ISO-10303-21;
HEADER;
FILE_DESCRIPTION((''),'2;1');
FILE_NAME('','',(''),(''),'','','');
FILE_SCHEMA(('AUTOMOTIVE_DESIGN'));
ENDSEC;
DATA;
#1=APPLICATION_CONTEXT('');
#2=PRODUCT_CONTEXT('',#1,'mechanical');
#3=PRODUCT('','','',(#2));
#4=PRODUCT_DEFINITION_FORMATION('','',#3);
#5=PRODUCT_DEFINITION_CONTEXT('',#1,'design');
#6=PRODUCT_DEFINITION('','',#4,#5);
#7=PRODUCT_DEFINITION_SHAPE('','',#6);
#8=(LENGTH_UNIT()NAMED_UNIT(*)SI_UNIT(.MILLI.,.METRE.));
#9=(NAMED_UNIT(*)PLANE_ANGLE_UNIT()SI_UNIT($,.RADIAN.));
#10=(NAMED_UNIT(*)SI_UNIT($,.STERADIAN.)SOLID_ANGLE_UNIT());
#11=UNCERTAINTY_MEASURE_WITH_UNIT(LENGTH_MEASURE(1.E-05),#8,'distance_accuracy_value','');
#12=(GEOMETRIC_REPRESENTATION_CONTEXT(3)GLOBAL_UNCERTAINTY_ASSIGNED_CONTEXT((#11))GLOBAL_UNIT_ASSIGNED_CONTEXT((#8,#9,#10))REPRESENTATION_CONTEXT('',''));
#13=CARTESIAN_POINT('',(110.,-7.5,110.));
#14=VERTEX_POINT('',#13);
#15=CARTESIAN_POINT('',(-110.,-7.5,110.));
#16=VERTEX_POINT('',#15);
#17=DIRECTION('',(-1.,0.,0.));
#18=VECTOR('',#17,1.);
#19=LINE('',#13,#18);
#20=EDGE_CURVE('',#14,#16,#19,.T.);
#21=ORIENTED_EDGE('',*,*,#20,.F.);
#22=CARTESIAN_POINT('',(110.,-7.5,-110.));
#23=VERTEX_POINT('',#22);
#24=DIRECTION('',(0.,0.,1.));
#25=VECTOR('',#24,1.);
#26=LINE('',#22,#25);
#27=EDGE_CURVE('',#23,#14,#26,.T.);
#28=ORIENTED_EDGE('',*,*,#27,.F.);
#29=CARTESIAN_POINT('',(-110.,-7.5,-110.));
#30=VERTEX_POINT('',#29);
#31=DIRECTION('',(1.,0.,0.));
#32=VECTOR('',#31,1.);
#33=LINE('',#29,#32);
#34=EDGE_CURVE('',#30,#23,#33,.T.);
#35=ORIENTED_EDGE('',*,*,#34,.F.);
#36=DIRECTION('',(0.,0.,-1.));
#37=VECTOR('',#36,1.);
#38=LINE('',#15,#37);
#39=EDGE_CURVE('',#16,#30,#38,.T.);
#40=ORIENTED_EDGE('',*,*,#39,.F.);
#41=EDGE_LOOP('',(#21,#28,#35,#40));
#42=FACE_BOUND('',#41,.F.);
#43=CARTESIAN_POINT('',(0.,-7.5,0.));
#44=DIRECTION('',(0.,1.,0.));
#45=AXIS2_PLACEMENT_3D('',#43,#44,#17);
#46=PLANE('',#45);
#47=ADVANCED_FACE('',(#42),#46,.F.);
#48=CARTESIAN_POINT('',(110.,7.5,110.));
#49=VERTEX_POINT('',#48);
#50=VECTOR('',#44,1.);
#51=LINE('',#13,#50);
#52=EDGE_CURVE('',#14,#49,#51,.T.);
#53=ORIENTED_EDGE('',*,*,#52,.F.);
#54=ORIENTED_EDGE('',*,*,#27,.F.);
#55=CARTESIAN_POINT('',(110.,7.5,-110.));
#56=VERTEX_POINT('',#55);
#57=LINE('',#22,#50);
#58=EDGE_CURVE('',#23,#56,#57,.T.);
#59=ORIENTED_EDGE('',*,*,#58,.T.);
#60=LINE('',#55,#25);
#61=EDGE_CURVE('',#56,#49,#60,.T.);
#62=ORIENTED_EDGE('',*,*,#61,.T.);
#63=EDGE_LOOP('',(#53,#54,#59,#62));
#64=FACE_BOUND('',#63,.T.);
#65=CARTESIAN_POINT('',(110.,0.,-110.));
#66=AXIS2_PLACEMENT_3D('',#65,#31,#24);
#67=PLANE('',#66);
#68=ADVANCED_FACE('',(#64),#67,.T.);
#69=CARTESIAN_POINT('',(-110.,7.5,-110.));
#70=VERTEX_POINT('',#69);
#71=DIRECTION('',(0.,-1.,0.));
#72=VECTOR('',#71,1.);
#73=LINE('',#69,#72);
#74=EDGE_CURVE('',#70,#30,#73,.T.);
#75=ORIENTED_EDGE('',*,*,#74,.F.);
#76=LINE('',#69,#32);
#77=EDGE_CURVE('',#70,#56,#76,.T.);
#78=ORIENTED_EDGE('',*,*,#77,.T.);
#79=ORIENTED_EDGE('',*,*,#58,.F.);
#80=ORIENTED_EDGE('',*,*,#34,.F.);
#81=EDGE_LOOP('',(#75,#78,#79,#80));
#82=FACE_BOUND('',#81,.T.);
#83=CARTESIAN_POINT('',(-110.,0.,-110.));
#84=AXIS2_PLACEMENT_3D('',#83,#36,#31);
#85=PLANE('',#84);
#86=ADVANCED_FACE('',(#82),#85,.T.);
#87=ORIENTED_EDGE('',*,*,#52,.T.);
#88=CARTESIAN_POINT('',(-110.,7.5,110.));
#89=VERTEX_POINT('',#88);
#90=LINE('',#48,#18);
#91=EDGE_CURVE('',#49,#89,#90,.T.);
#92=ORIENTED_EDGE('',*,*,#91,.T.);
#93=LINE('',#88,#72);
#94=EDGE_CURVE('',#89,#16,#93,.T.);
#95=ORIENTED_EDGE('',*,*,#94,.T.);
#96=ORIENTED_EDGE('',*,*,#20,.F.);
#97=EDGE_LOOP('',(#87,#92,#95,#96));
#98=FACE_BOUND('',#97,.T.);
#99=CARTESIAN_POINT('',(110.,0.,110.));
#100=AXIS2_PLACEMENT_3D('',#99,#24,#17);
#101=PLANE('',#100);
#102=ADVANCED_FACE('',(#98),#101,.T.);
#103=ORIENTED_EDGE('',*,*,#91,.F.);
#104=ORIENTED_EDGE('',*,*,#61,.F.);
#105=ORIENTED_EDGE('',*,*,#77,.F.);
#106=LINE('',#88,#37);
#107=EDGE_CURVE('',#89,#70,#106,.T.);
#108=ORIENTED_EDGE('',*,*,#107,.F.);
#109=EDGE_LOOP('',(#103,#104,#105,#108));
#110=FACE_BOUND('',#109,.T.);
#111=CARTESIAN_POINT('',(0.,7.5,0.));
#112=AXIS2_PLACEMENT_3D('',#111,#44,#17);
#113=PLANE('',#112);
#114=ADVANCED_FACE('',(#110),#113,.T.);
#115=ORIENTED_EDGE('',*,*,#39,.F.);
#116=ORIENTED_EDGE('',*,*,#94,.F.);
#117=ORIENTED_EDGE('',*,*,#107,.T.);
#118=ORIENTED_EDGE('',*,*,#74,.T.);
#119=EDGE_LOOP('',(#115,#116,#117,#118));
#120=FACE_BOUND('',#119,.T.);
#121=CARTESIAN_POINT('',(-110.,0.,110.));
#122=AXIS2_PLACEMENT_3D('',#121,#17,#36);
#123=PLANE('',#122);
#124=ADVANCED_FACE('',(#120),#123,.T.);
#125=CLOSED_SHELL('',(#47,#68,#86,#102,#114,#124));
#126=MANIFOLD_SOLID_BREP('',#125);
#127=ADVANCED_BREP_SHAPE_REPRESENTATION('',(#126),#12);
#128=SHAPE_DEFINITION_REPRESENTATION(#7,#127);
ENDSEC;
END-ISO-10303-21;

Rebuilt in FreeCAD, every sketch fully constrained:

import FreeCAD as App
import Part
import Sketcher
Q = App.Units.Quantity


def add_polygon(sketch, points):
    """Adds a closed chain of lines whose ends are joined by coincident constraints."""
    first, n = sketch.GeometryCount, len(points)
    for a, b in zip(points, points[1:] + points[:1]):
        sketch.addGeometry(Part.LineSegment(App.Vector(*a, 0), App.Vector(*b, 0)), False)
    for i in range(n):
        sketch.addConstraint(Sketcher.Constraint("Coincident", first + i, 2, first + (i + 1) % n, 1))

doc = App.newDocument("Part")
body = doc.addObject("PartDesign::Body", "Body")

sketch1 = doc.addObject("Sketcher::SketchObject", "Sketch")
body.addObject(sketch1)
sketch1.AttachmentSupport = (doc.XZ_Plane, [""])
sketch1.MapMode = "FlatFace"
add_polygon(sketch1, [(-110, 110), (110, 110), (110, -110), (-110, -110)])
sketch1.addConstraint(Sketcher.Constraint("Horizontal", 0))
sketch1.addConstraint(Sketcher.Constraint("Vertical", 1))
sketch1.addConstraint(Sketcher.Constraint("Horizontal", 2))
sketch1.addConstraint(Sketcher.Constraint("Vertical", 3))
sketch1.addConstraint(Sketcher.Constraint("Symmetric", 0, 2, 2, 2, -1, 1))
sketch1.addConstraint(Sketcher.Constraint("Equal", 2, 1))
sketch1.addConstraint(Sketcher.Constraint("DistanceX", 0, 1, 0, 2, Q("220 mm")))
pad1 = doc.addObject("PartDesign::Pad", "Pad")
body.addObject(pad1)
pad1.Profile = sketch1
pad1.Length = 15
pad1.Midplane = True

doc.recompute()
